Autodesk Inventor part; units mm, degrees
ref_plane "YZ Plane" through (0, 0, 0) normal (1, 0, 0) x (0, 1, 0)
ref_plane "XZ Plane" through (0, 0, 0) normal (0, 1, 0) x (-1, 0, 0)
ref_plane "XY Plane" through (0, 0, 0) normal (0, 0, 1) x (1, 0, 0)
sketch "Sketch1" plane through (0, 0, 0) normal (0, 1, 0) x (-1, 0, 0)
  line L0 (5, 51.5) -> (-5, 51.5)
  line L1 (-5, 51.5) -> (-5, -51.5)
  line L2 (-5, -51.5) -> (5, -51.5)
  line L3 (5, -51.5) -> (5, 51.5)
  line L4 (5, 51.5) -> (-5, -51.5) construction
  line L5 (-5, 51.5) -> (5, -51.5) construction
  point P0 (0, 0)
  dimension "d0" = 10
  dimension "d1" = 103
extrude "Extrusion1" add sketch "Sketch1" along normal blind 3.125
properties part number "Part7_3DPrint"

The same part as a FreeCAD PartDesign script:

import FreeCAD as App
import Part
import Sketcher

V = App.Vector
Q = App.Units.Quantity

doc = App.newDocument("Part")
params = doc.addObject("Spreadsheet::Sheet", "Params")
for row, (alias, value) in enumerate([
    ("sketch1_width", "10 mm"),
    ("sketch1_height", "103 mm"),
    ("pad1_length", "3.125 mm"),
], start=1):
    params.set(f"A{row}", alias)
    params.set(f"B{row}", "=" + value)
    params.setAlias(f"B{row}", alias)

body = doc.addObject("PartDesign::Body", "Body")

# Sketch on XZ plane
sketch1 = body.newObject("Sketcher::SketchObject", "Sketch")
sketch1.AttachmentSupport = (doc.getObject("XZ_Plane"), [""])
sketch1.MapMode = "FlatFace"
sketch1.addGeometry(Part.LineSegment(V(-5, -51.5, 0), V(-5, 51.5, 0)), False)
sketch1.addGeometry(Part.LineSegment(V(-5, 51.5, 0), V(5, 51.5, 0)), False)
sketch1.addGeometry(Part.LineSegment(V(5, 51.5, 0), V(5, -51.5, 0)), False)
sketch1.addGeometry(Part.LineSegment(V(5, -51.5, 0), V(-5, -51.5, 0)), False)
sketch1.addConstraint(Sketcher.Constraint("Coincident", 0, 2, 1, 1))
sketch1.addConstraint(Sketcher.Constraint("Coincident", 1, 2, 2, 1))
sketch1.addConstraint(Sketcher.Constraint("Coincident", 2, 2, 3, 1))
sketch1.addConstraint(Sketcher.Constraint("Coincident", 3, 2, 0, 1))
sketch1.addConstraint(Sketcher.Constraint("Vertical", 0))
sketch1.addConstraint(Sketcher.Constraint("Horizontal", 1))
sketch1.addConstraint(Sketcher.Constraint("Vertical", 2))
sketch1.addConstraint(Sketcher.Constraint("Horizontal", 3))
sketch1.addConstraint(Sketcher.Constraint("Symmetric", 0, 2, 2, 2, -1, 1))
sketch1.addConstraint(Sketcher.Constraint("DistanceX", 1, 1, 1, 2, Q("10 mm")))
sketch1.addConstraint(Sketcher.Constraint("DistanceY", 0, 1, 0, 2, Q("103 mm")))
sketch1.setExpression("Constraints[9]", "Params.sketch1_width")
sketch1.setExpression("Constraints[10]", "Params.sketch1_height")
pad1 = body.newObject("PartDesign::Pad", "Pad")
pad1.Profile = sketch1
pad1.setExpression("Length", "Params.pad1_length")
pad1.Reversed = True

doc.recompute()
